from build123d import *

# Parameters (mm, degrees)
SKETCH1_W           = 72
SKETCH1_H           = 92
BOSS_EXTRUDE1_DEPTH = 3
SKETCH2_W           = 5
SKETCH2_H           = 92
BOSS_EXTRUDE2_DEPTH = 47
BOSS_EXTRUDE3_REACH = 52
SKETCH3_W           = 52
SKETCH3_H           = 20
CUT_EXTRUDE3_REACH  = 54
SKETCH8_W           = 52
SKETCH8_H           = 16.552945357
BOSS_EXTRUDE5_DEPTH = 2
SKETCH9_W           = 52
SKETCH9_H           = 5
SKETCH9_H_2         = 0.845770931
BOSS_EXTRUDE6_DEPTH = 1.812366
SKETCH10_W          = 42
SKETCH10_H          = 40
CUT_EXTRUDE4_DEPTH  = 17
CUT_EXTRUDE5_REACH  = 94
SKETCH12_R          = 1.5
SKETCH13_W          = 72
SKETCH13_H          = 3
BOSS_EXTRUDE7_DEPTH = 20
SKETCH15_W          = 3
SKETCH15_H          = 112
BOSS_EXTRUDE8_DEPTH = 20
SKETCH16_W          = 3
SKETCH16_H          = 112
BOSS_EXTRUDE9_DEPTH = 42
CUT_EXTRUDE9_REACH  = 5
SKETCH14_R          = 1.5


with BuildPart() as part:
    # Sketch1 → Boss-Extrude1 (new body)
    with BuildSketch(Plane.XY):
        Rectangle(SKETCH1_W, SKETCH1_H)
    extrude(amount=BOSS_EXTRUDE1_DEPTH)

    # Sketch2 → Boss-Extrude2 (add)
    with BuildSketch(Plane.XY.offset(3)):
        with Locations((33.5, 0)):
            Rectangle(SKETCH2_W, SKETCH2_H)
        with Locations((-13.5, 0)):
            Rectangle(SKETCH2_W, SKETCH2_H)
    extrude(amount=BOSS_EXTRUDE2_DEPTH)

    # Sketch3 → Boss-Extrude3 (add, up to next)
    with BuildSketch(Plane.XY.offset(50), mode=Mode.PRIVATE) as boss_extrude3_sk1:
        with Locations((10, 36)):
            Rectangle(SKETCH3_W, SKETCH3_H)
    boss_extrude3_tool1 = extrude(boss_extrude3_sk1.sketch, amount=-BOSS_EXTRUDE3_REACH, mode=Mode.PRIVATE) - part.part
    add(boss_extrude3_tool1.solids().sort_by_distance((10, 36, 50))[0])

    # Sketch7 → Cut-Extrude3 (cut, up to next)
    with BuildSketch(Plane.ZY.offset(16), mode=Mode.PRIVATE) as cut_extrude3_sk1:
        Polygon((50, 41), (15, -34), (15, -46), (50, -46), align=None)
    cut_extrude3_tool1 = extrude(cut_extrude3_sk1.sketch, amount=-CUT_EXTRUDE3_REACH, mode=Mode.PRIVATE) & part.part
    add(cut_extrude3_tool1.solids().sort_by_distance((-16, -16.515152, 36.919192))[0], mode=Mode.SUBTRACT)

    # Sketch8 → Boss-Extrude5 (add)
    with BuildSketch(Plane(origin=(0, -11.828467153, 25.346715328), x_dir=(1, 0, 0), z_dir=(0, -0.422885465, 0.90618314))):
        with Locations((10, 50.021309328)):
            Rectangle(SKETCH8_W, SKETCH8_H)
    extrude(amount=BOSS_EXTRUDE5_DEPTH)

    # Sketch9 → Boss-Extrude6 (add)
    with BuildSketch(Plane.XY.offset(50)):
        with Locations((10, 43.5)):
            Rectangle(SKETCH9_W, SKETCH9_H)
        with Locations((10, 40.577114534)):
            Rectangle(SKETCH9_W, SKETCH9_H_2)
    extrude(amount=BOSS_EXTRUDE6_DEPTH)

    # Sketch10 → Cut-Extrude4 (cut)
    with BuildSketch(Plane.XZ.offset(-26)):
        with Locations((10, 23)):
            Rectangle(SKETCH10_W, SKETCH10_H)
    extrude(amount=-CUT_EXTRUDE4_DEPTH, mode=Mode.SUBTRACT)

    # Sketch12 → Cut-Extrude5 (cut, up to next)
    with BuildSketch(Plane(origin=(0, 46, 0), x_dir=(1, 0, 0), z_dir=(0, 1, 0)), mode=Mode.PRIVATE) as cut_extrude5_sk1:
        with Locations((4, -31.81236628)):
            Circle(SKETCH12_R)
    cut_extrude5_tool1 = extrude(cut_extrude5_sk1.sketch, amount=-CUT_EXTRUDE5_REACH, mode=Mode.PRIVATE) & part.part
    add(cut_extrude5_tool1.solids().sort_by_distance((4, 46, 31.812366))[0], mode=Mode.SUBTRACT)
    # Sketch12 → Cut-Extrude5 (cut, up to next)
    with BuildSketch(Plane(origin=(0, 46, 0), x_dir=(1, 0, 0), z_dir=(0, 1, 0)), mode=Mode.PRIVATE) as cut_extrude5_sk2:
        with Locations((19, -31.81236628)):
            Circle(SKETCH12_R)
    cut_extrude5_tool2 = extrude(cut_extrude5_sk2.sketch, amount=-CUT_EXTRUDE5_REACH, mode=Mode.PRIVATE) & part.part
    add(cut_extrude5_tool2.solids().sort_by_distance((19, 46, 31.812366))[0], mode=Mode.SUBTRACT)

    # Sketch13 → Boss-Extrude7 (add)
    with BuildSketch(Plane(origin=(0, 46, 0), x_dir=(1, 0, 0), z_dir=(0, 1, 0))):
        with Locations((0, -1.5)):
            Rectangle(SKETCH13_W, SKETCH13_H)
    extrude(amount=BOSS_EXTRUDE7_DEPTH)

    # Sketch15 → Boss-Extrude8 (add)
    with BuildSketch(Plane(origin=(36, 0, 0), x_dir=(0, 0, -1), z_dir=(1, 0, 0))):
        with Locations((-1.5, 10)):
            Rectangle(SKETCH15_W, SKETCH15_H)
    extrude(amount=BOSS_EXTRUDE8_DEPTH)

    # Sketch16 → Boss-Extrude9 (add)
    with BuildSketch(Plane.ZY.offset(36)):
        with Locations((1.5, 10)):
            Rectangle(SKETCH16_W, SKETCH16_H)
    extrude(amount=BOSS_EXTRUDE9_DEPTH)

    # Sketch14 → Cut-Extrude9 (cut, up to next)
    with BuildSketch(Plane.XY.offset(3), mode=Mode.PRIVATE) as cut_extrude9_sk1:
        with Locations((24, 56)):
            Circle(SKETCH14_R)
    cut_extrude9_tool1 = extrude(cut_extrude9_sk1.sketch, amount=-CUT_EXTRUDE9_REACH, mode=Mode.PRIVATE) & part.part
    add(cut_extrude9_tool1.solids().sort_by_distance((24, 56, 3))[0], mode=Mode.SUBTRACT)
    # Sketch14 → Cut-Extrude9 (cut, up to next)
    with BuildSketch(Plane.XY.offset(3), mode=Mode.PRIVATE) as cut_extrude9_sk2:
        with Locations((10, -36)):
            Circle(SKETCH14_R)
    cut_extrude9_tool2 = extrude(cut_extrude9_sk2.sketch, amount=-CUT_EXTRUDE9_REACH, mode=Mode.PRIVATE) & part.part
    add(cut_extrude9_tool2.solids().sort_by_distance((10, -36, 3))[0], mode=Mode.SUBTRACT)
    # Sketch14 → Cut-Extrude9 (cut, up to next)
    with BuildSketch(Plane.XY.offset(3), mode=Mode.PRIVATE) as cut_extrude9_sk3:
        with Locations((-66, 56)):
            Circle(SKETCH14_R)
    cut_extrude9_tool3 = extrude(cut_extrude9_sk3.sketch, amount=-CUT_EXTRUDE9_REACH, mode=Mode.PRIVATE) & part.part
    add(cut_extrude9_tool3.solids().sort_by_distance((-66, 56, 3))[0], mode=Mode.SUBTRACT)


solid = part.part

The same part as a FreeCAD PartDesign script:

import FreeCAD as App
import Part
import Sketcher
Q = App.Units.Quantity


def add_polygon(sketch, points):
    """Adds a closed chain of lines whose ends are joined by coincident constraints."""
    first, n = sketch.GeometryCount, len(points)
    for a, b in zip(points, points[1:] + points[:1]):
        sketch.addGeometry(Part.LineSegment(App.Vector(*a, 0), App.Vector(*b, 0)), False)
    for i in range(n):
        sketch.addConstraint(Sketcher.Constraint("Coincident", first + i, 2, first + (i + 1) % n, 1))

doc = App.newDocument("Part")
body = doc.addObject("PartDesign::Body", "Body")

# Sketch on XY plane
sketch1 = body.newObject("Sketcher::SketchObject", "Sketch")
sketch1.AttachmentSupport = (doc.getObject("XY_Plane"), [""])
sketch1.MapMode = "FlatFace"
add_polygon(sketch1, [(-36, 46), (-36, -46), (36, -46), (36, 46)])  # lines 0-3
sketch1.addConstraint(Sketcher.Constraint("Vertical", 0))
sketch1.addConstraint(Sketcher.Constraint("Horizontal", 1))
sketch1.addConstraint(Sketcher.Constraint("Vertical", 2))
sketch1.addConstraint(Sketcher.Constraint("Horizontal", 3))
sketch1.addConstraint(Sketcher.Constraint("Symmetric", 0, 2, 2, 2, -1, 1))
sketch1.addConstraint(Sketcher.Constraint("DistanceX", 1, 1, 1, 2, Q("72 mm")))
sketch1.addConstraint(Sketcher.Constraint("DistanceY", 0, 2, 0, 1, Q("92 mm")))
pad1 = body.newObject("PartDesign::Pad", "Pad")
pad1.Profile = sketch1
pad1.Length = 3

# Sketch on XY plane
sketch2 = body.newObject("Sketcher::SketchObject", "Sketch001")
sketch2.AttachmentSupport = (doc.getObject("XY_Plane"), [""])
sketch2.MapMode = "FlatFace"
sketch2.AttachmentOffset = App.Placement(App.Vector(0, 0, 3), App.Rotation())
add_polygon(sketch2, [(31, 46), (31, -46), (36, -46), (36, 46)])  # lines 0-3
add_polygon(sketch2, [(-16, 46), (-16, -46), (-11, -46), (-11, 46)])  # lines 4-7
sketch2.addConstraint(Sketcher.Constraint("Vertical", 0))
sketch2.addConstraint(Sketcher.Constraint("Horizontal", 1))
sketch2.addConstraint(Sketcher.Constraint("Vertical", 2))
sketch2.addConstraint(Sketcher.Constraint("Horizontal", 3))
sketch2.addConstraint(Sketcher.Constraint("Vertical", 4))
sketch2.addConstraint(Sketcher.Constraint("Horizontal", 5))
sketch2.addConstraint(Sketcher.Constraint("Vertical", 6))
sketch2.addConstraint(Sketcher.Constraint("Horizontal", 7))
sketch2.addConstraint(Sketcher.Constraint("Horizontal", 1, 2, 4, 2))
sketch2.addConstraint(Sketcher.Constraint("Horizontal", 3, 2, 6, 2))
sketch2.addConstraint(Sketcher.Constraint("Equal", 3, 5))
sketch2.addConstraint(Sketcher.Constraint("DistanceX", 1, 1, 1, 2, Q("5 mm")))
sketch2.addConstraint(Sketcher.Constraint("DistanceY", 0, 2, 0, 1, Q("92 mm")))
sketch2.addConstraint(Sketcher.Constraint("DistanceX", -1, 1, 0, 2, Q("31 mm")))
sketch2.addConstraint(Sketcher.Constraint("DistanceY", 0, 2, -1, 1, Q("46 mm")))
sketch2.addConstraint(Sketcher.Constraint("DistanceX", 4, 2, -1, 1, Q("16 mm")))
pad2 = body.newObject("PartDesign::Pad", "Pad001")
pad2.Profile = sketch2
pad2.Length = 47

# Sketch on XY plane
sketch3 = body.newObject("Sketcher::SketchObject", "Sketch002")
sketch3.AttachmentSupport = (doc.getObject("XY_Plane"), [""])
sketch3.MapMode = "FlatFace"
sketch3.AttachmentOffset = App.Placement(App.Vector(0, 0, 50), App.Rotation())
add_polygon(sketch3, [(-16, 46), (-16, 26), (36, 26), (36, 46)])  # lines 0-3
sketch3.addConstraint(Sketcher.Constraint("Vertical", 0))
sketch3.addConstraint(Sketcher.Constraint("Horizontal", 1))
sketch3.addConstraint(Sketcher.Constraint("Vertical", 2))
sketch3.addConstraint(Sketcher.Constraint("Horizontal", 3))
sketch3.addConstraint(Sketcher.Constraint("DistanceX", 1, 1, 1, 2, Q("52 mm")))
sketch3.addConstraint(Sketcher.Constraint("DistanceY", 0, 2, 0, 1, Q("20 mm")))
sketch3.addConstraint(Sketcher.Constraint("DistanceX", 0, 2, -1, 1, Q("16 mm")))
sketch3.addConstraint(Sketcher.Constraint("DistanceY", -1, 1, 0, 2, Q("26 mm")))
pad3 = body.newObject("PartDesign::Pad", "Pad002")
pad3.Profile = sketch3
pad3.Type = "UpToFirst"
pad3.Reversed = True

# Sketch on YZ plane
sketch4 = body.newObject("Sketcher::SketchObject", "Sketch003")
sketch4.AttachmentSupport = (doc.getObject("YZ_Plane"), [""])
sketch4.MapMode = "FlatFace"
sketch4.AttachmentOffset = App.Placement(App.Vector(0, 0, -16), App.Rotation())
add_polygon(sketch4, [(41, 50), (-34, 15), (-46, 15), (-46, 50)])  # lines 0-3
sketch4.addConstraint(Sketcher.Constraint("Horizontal", 1))
sketch4.addConstraint(Sketcher.Constraint("Vertical", 2))
sketch4.addConstraint(Sketcher.Constraint("Horizontal", 3))
sketch4.addConstraint(Sketcher.Constraint("DistanceX", 1, 2, 1, 1, Q("12 mm")))
sketch4.addConstraint(Sketcher.Constraint("DistanceX", 3, 1, 3, 2, Q("87 mm")))
sketch4.addConstraint(Sketcher.Constraint("DistanceY", 2, 1, 2, 2, Q("35 mm")))
sketch4.addConstraint(Sketcher.Constraint("DistanceX", 0, 2, -1, 1, Q("34 mm")))
sketch4.addConstraint(Sketcher.Constraint("DistanceY", -1, 1, 0, 2, Q("15 mm")))
pocket1 = body.newObject("PartDesign::Pocket", "Pocket")
pocket1.Profile = sketch4
pocket1.Length = 52
pocket1.Reversed = True

# Sketch on an angled plane
sketch5 = body.newObject("Sketcher::SketchObject", "Sketch004")
sketch5.Placement = App.Placement(App.Vector(0, -11.828467, 25.346715), App.Rotation(App.Vector(1, 0, 0), App.Vector(0, 0.90618314, 0.422885465), App.Vector(0, -0.422885465, 0.90618314), "ZXY"))
add_polygon(sketch5, [(-16, 58), (-16, 42), (36, 42), (36, 58)])  # lines 0-3
sketch5.addConstraint(Sketcher.Constraint("Vertical", 0))
sketch5.addConstraint(Sketcher.Constraint("Horizontal", 1))
sketch5.addConstraint(Sketcher.Constraint("Vertical", 2))
sketch5.addConstraint(Sketcher.Constraint("Horizontal", 3))
sketch5.addConstraint(Sketcher.Constraint("DistanceX", 1, 1, 1, 2, Q("52 mm")))
sketch5.addConstraint(Sketcher.Constraint("DistanceX", 0, 2, -1, 1, Q("16 mm")))
sketch5.addConstraint(Sketcher.Constraint("DistanceY", 0, 2, 0, 1, Q("16.552945 mm")))
sketch5.addConstraint(Sketcher.Constraint("DistanceY", -1, 1, 2, 2, Q("58.297782 mm")))
pad4 = body.newObject("PartDesign::Pad", "Pad003")
pad4.Profile = sketch5
pad4.Length = 2

# Sketch on XY plane
sketch6 = body.newObject("Sketcher::SketchObject", "Sketch005")
sketch6.AttachmentSupport = (doc.getObject("XY_Plane"), [""])
sketch6.MapMode = "FlatFace"
sketch6.AttachmentOffset = App.Placement(App.Vector(0, 0, 50), App.Rotation())
add_polygon(sketch6, [(-16, 46), (-16, 40), (36, 40), (36, 46)])  # lines 0-3
sketch6.addConstraint(Sketcher.Constraint("Vertical", 0))
sketch6.addConstraint(Sketcher.Constraint("Horizontal", 1))
sketch6.addConstraint(Sketcher.Constraint("Vertical", 2))
sketch6.addConstraint(Sketcher.Constraint("Horizontal", 3))
sketch6.addConstraint(Sketcher.Constraint("DistanceX", 1, 1, 1, 2, Q("52 mm")))
sketch6.addConstraint(Sketcher.Constraint("DistanceX", 0, 2, -1, 1, Q("16 mm")))
sketch6.addConstraint(Sketcher.Constraint("DistanceY", -1, 1, 2, 2, Q("46 mm")))
sketch6.addConstraint(Sketcher.Constraint("DistanceY", 0, 2, 0, 1, Q("5.845771 mm")))
pad5 = body.newObject("PartDesign::Pad", "Pad004")
pad5.Profile = sketch6
pad5.Length = 1.812366

# Sketch on XZ plane
sketch7 = body.newObject("Sketcher::SketchObject", "Sketch006")
sketch7.AttachmentSupport = (doc.getObject("XZ_Plane"), [""])
sketch7.MapMode = "FlatFace"
sketch7.AttachmentOffset = App.Placement(App.Vector(0, 0, -26), App.Rotation())
add_polygon(sketch7, [(-11, 43), (-11, 3), (31, 3), (31, 43)])  # lines 0-3
sketch7.addConstraint(Sketcher.Constraint("Vertical", 0))
sketch7.addConstraint(Sketcher.Constraint("Horizontal", 1))
sketch7.addConstraint(Sketcher.Constraint("Vertical", 2))
sketch7.addConstraint(Sketcher.Constraint("Horizontal", 3))
sketch7.addConstraint(Sketcher.Constraint("DistanceX", 1, 1, 1, 2, Q("42 mm")))
sketch7.addConstraint(Sketcher.Constraint("DistanceY", 0, 2, 0, 1, Q("40 mm")))
sketch7.addConstraint(Sketcher.Constraint("DistanceX", 0, 2, -1, 1, Q("11 mm")))
sketch7.addConstraint(Sketcher.Constraint("DistanceY", -1, 1, 0, 2, Q("3 mm")))
pocket2 = body.newObject("PartDesign::Pocket", "Pocket001")
pocket2.Profile = sketch7
pocket2.Length = 17

# Sketch on XZ plane
sketch8 = body.newObject("Sketcher::SketchObject", "Sketch007")
sketch8.AttachmentSupport = (doc.getObject("XZ_Plane"), [""])
sketch8.MapMode = "FlatFace"
sketch8.AttachmentOffset = App.Placement(App.Vector(0, 0, -46), App.Rotation())
sketch8.addGeometry(Part.Circle(App.Vector(4, 31.8, 0), App.Vector(0, 0, 1), 1.5), False)
sketch8.addConstraint(Sketcher.Constraint("Diameter", 0, Q("3 mm")))
sketch8.addConstraint(Sketcher.Constraint("DistanceX", -1, 1, 0, 3, Q("4 mm")))
sketch8.addConstraint(Sketcher.Constraint("DistanceY", -1, 1, 0, 3, Q("31.812366 mm")))
pocket3 = body.newObject("PartDesign::Pocket", "Pocket002")
pocket3.Profile = sketch8
pocket3.Type = "UpToFirst"
pocket3.Reversed = True

# Sketch on XZ plane
sketch9 = body.newObject("Sketcher::SketchObject", "Sketch008")
sketch9.AttachmentSupport = (doc.getObject("XZ_Plane"), [""])
sketch9.MapMode = "FlatFace"
sketch9.AttachmentOffset = App.Placement(App.Vector(0, 0, -46), App.Rotation())
sketch9.addGeometry(Part.Circle(App.Vector(19, 31.8, 0), App.Vector(0, 0, 1), 1.5), False)
sketch9.addConstraint(Sketcher.Constraint("Diameter", 0, Q("3 mm")))
sketch9.addConstraint(Sketcher.Constraint("DistanceX", -1, 1, 0, 3, Q("19 mm")))
sketch9.addConstraint(Sketcher.Constraint("DistanceY", -1, 1, 0, 3, Q("31.812366 mm")))
pocket4 = body.newObject("PartDesign::Pocket", "Pocket003")
pocket4.Profile = sketch9
pocket4.Type = "UpToFirst"
pocket4.Reversed = True

# Sketch on XZ plane
sketch10 = body.newObject("Sketcher::SketchObject", "Sketch009")
sketch10.AttachmentSupport = (doc.getObject("XZ_Plane"), [""])
sketch10.MapMode = "FlatFace"
sketch10.AttachmentOffset = App.Placement(App.Vector(0, 0, -46), App.Rotation())
add_polygon(sketch10, [(-36, 0), (-36, 3), (36, 3), (36, 0)])  # lines 0-3
sketch10.addConstraint(Sketcher.Constraint("Vertical", 0))
sketch10.addConstraint(Sketcher.Constraint("Horizontal", 1))
sketch10.addConstraint(Sketcher.Constraint("Vertical", 2))
sketch10.addConstraint(Sketcher.Constraint("Horizontal", 3))
sketch10.addConstraint(Sketcher.Constraint("Symmetric", 2, 2, 3, 2, -1, 1))
sketch10.addConstraint(Sketcher.Constraint("DistanceX", 1, 1, 1, 2, Q("72 mm")))
sketch10.addConstraint(Sketcher.Constraint("DistanceY", 0, 1, 0, 2, Q("3 mm")))
pad6 = body.newObject("PartDesign::Pad", "Pad005")
pad6.Profile = sketch10
pad6.Length = 20
pad6.Reversed = True

# Sketch on YZ plane
sketch11 = body.newObject("Sketcher::SketchObject", "Sketch010")
sketch11.AttachmentSupport = (doc.getObject("YZ_Plane"), [""])
sketch11.MapMode = "FlatFace"
sketch11.AttachmentOffset = App.Placement(App.Vector(0, 0, 36), App.Rotation())
add_polygon(sketch11, [(66, 3), (-46, 3), (-46, 0), (66, 0)])  # lines 0-3
sketch11.addConstraint(Sketcher.Constraint("Horizontal", 0))
sketch11.addConstraint(Sketcher.Constraint("Vertical", 1))
sketch11.addConstraint(Sketcher.Constraint("Horizontal", 2))
sketch11.addConstraint(Sketcher.Constraint("Vertical", 3))
sketch11.addConstraint(Sketcher.Constraint("PointOnObject", 1, 2, -1))
sketch11.addConstraint(Sketcher.Constraint("DistanceX", 0, 2, 0, 1, Q("112 mm")))
sketch11.addConstraint(Sketcher.Constraint("DistanceY", 1, 2, 1, 1, Q("3 mm")))
sketch11.addConstraint(Sketcher.Constraint("DistanceX", 0, 2, -1, 1, Q("46 mm")))
pad7 = body.newObject("PartDesign::Pad", "Pad006")
pad7.Profile = sketch11
pad7.Length = 20

# Sketch on YZ plane
sketch12 = body.newObject("Sketcher::SketchObject", "Sketch011")
sketch12.AttachmentSupport = (doc.getObject("YZ_Plane"), [""])
sketch12.MapMode = "FlatFace"
sketch12.AttachmentOffset = App.Placement(App.Vector(0, 0, -36), App.Rotation())
add_polygon(sketch12, [(66, 0), (-46, 0), (-46, 3), (66, 3)])  # lines 0-3
sketch12.addConstraint(Sketcher.Constraint("Horizontal", 0))
sketch12.addConstraint(Sketcher.Constraint("Vertical", 1))
sketch12.addConstraint(Sketcher.Constraint("Horizontal", 2))
sketch12.addConstraint(Sketcher.Constraint("Vertical", 3))
sketch12.addConstraint(Sketcher.Constraint("PointOnObject", 0, 2, -1))
sketch12.addConstraint(Sketcher.Constraint("DistanceX", 0, 2, 0, 1, Q("112 mm")))
sketch12.addConstraint(Sketcher.Constraint("DistanceY", 1, 1, 1, 2, Q("3 mm")))
sketch12.addConstraint(Sketcher.Constraint("DistanceX", 0, 2, -1, 1, Q("46 mm")))
pad8 = body.newObject("PartDesign::Pad", "Pad007")
pad8.Profile = sketch12
pad8.Length = 42
pad8.Reversed = True

# Sketch on XY plane
sketch13 = body.newObject("Sketcher::SketchObject", "Sketch012")
sketch13.AttachmentSupport = (doc.getObject("XY_Plane"), [""])
sketch13.MapMode = "FlatFace"
sketch13.AttachmentOffset = App.Placement(App.Vector(0, 0, 3), App.Rotation())
sketch13.addGeometry(Part.Circle(App.Vector(24, 56, 0), App.Vector(0, 0, 1), 1.5), False)
sketch13.addConstraint(Sketcher.Constraint("Diameter", 0, Q("3 mm")))
sketch13.addConstraint(Sketcher.Constraint("DistanceX", -1, 1, 0, 3, Q("24 mm")))
sketch13.addConstraint(Sketcher.Constraint("DistanceY", -1, 1, 0, 3, Q("56 mm")))
pocket5 = body.newObject("PartDesign::Pocket", "Pocket004")
pocket5.Profile = sketch13
pocket5.Type = "UpToFirst"

# Sketch on XY plane
sketch14 = body.newObject("Sketcher::SketchObject", "Sketch013")
sketch14.AttachmentSupport = (doc.getObject("XY_Plane"), [""])
sketch14.MapMode = "FlatFace"
sketch14.AttachmentOffset = App.Placement(App.Vector(0, 0, 3), App.Rotation())
sketch14.addGeometry(Part.Circle(App.Vector(10, -36, 0), App.Vector(0, 0, 1), 1.5), False)
sketch14.addConstraint(Sketcher.Constraint("Diameter", 0, Q("3 mm")))
sketch14.addConstraint(Sketcher.Constraint("DistanceX", -1, 1, 0, 3, Q("10 mm")))
sketch14.addConstraint(Sketcher.Constraint("DistanceY", 0, 3, -1, 1, Q("36 mm")))
pocket6 = body.newObject("PartDesign::Pocket", "Pocket005")
pocket6.Profile = sketch14
pocket6.Type = "UpToFirst"

# Sketch on XY plane
sketch15 = body.newObject("Sketcher::SketchObject", "Sketch014")
sketch15.AttachmentSupport = (doc.getObject("XY_Plane"), [""])
sketch15.MapMode = "FlatFace"
sketch15.AttachmentOffset = App.Placement(App.Vector(0, 0, 3), App.Rotation())
sketch15.addGeometry(Part.Circle(App.Vector(-66, 56, 0), App.Vector(0, 0, 1), 1.5), False)
sketch15.addConstraint(Sketcher.Constraint("Diameter", 0, Q("3 mm")))
sketch15.addConstraint(Sketcher.Constraint("DistanceX", 0, 3, -1, 1, Q("66 mm")))
sketch15.addConstraint(Sketcher.Constraint("DistanceY", -1, 1, 0, 3, Q("56 mm")))
pocket7 = body.newObject("PartDesign::Pocket", "Pocket006")
pocket7.Profile = sketch15
pocket7.Type = "UpToFirst"

doc.recompute()
